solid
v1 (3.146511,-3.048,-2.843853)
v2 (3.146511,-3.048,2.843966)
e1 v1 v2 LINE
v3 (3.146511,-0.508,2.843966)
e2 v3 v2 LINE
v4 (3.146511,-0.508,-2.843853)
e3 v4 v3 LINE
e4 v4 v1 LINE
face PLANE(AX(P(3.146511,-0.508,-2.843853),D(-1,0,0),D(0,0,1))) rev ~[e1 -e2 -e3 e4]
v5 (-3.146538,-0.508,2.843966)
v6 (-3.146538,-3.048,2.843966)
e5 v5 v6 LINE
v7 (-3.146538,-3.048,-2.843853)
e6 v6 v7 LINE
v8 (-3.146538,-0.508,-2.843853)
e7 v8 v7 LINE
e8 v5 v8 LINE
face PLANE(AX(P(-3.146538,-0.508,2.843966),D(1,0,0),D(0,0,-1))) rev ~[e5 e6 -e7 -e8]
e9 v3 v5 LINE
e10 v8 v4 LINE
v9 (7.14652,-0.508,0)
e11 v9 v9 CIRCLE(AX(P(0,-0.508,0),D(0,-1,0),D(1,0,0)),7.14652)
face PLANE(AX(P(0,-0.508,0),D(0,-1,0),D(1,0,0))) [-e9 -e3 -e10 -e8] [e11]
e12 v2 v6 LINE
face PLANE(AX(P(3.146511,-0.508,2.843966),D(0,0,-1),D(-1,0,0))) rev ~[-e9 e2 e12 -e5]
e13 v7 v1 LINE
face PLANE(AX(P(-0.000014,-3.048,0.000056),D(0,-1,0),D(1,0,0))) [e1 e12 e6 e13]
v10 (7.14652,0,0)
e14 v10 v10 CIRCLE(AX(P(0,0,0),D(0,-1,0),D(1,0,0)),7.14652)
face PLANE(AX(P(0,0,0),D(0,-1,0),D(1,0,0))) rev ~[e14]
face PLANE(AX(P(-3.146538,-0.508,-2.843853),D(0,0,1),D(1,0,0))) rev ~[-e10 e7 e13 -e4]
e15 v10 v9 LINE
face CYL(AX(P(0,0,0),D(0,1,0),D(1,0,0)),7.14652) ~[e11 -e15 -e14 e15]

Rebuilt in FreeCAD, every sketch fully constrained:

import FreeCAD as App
import Part
import Sketcher
Q = App.Units.Quantity


def add_polygon(sketch, points):
    """Adds a closed chain of lines whose ends are joined by coincident constraints."""
    first, n = sketch.GeometryCount, len(points)
    for a, b in zip(points, points[1:] + points[:1]):
        sketch.addGeometry(Part.LineSegment(App.Vector(*a, 0), App.Vector(*b, 0)), False)
    for i in range(n):
        sketch.addConstraint(Sketcher.Constraint("Coincident", first + i, 2, first + (i + 1) % n, 1))

doc = App.newDocument("Part")
body = doc.addObject("PartDesign::Body", "Body")

sketch1 = doc.addObject("Sketcher::SketchObject", "Sketch")
body.addObject(sketch1)
sketch1.AttachmentSupport = (doc.XZ_Plane, [""])
sketch1.MapMode = "FlatFace"
sketch1.addGeometry(Part.Circle(App.Vector(0, 0, 0), App.Vector(0, 0, 1), 7), False)
sketch1.addConstraint(Sketcher.Constraint("Coincident", 0, 3, -1, 1))
sketch1.addConstraint(Sketcher.Constraint("Diameter", 0, Q("14.29304 mm")))
pad1 = doc.addObject("PartDesign::Pad", "Pad")
body.addObject(pad1)
pad1.Profile = sketch1
pad1.Length = Q("0.02 in")

sketch2 = doc.addObject("Sketcher::SketchObject", "Sketch001")
body.addObject(sketch2)
sketch2.AttachmentSupport = (doc.XZ_Plane, [""])
sketch2.MapMode = "FlatFace"
sketch2.AttachmentOffset = App.Placement(App.Vector(0, 0, 0.02 * 25.4), App.Rotation())
add_polygon(sketch2, [(-3, 3), (-3, -3), (3, -3), (3, 3)])
sketch2.addConstraint(Sketcher.Constraint("Vertical", 0))
sketch2.addConstraint(Sketcher.Constraint("Horizontal", 1))
sketch2.addConstraint(Sketcher.Constraint("Vertical", 2))
sketch2.addConstraint(Sketcher.Constraint("Horizontal", 3))
sketch2.addConstraint(Sketcher.Constraint("DistanceX", 1, 1, 1, 2, Q("6.293049 mm")))
sketch2.addConstraint(Sketcher.Constraint("DistanceY", 0, 2, 0, 1, Q("5.687819 mm")))
sketch2.addConstraint(Sketcher.Constraint("DistanceX", 0, 2, -1, 1, Q("3.146538 mm")))
sketch2.addConstraint(Sketcher.Constraint("DistanceY", 0, 2, -1, 1, Q("2.843853 mm")))
pad2 = doc.addObject("PartDesign::Pad", "Pad001")
body.addObject(pad2)
pad2.Profile = sketch2
pad2.Length = Q("0.1 in")

doc.recompute()
